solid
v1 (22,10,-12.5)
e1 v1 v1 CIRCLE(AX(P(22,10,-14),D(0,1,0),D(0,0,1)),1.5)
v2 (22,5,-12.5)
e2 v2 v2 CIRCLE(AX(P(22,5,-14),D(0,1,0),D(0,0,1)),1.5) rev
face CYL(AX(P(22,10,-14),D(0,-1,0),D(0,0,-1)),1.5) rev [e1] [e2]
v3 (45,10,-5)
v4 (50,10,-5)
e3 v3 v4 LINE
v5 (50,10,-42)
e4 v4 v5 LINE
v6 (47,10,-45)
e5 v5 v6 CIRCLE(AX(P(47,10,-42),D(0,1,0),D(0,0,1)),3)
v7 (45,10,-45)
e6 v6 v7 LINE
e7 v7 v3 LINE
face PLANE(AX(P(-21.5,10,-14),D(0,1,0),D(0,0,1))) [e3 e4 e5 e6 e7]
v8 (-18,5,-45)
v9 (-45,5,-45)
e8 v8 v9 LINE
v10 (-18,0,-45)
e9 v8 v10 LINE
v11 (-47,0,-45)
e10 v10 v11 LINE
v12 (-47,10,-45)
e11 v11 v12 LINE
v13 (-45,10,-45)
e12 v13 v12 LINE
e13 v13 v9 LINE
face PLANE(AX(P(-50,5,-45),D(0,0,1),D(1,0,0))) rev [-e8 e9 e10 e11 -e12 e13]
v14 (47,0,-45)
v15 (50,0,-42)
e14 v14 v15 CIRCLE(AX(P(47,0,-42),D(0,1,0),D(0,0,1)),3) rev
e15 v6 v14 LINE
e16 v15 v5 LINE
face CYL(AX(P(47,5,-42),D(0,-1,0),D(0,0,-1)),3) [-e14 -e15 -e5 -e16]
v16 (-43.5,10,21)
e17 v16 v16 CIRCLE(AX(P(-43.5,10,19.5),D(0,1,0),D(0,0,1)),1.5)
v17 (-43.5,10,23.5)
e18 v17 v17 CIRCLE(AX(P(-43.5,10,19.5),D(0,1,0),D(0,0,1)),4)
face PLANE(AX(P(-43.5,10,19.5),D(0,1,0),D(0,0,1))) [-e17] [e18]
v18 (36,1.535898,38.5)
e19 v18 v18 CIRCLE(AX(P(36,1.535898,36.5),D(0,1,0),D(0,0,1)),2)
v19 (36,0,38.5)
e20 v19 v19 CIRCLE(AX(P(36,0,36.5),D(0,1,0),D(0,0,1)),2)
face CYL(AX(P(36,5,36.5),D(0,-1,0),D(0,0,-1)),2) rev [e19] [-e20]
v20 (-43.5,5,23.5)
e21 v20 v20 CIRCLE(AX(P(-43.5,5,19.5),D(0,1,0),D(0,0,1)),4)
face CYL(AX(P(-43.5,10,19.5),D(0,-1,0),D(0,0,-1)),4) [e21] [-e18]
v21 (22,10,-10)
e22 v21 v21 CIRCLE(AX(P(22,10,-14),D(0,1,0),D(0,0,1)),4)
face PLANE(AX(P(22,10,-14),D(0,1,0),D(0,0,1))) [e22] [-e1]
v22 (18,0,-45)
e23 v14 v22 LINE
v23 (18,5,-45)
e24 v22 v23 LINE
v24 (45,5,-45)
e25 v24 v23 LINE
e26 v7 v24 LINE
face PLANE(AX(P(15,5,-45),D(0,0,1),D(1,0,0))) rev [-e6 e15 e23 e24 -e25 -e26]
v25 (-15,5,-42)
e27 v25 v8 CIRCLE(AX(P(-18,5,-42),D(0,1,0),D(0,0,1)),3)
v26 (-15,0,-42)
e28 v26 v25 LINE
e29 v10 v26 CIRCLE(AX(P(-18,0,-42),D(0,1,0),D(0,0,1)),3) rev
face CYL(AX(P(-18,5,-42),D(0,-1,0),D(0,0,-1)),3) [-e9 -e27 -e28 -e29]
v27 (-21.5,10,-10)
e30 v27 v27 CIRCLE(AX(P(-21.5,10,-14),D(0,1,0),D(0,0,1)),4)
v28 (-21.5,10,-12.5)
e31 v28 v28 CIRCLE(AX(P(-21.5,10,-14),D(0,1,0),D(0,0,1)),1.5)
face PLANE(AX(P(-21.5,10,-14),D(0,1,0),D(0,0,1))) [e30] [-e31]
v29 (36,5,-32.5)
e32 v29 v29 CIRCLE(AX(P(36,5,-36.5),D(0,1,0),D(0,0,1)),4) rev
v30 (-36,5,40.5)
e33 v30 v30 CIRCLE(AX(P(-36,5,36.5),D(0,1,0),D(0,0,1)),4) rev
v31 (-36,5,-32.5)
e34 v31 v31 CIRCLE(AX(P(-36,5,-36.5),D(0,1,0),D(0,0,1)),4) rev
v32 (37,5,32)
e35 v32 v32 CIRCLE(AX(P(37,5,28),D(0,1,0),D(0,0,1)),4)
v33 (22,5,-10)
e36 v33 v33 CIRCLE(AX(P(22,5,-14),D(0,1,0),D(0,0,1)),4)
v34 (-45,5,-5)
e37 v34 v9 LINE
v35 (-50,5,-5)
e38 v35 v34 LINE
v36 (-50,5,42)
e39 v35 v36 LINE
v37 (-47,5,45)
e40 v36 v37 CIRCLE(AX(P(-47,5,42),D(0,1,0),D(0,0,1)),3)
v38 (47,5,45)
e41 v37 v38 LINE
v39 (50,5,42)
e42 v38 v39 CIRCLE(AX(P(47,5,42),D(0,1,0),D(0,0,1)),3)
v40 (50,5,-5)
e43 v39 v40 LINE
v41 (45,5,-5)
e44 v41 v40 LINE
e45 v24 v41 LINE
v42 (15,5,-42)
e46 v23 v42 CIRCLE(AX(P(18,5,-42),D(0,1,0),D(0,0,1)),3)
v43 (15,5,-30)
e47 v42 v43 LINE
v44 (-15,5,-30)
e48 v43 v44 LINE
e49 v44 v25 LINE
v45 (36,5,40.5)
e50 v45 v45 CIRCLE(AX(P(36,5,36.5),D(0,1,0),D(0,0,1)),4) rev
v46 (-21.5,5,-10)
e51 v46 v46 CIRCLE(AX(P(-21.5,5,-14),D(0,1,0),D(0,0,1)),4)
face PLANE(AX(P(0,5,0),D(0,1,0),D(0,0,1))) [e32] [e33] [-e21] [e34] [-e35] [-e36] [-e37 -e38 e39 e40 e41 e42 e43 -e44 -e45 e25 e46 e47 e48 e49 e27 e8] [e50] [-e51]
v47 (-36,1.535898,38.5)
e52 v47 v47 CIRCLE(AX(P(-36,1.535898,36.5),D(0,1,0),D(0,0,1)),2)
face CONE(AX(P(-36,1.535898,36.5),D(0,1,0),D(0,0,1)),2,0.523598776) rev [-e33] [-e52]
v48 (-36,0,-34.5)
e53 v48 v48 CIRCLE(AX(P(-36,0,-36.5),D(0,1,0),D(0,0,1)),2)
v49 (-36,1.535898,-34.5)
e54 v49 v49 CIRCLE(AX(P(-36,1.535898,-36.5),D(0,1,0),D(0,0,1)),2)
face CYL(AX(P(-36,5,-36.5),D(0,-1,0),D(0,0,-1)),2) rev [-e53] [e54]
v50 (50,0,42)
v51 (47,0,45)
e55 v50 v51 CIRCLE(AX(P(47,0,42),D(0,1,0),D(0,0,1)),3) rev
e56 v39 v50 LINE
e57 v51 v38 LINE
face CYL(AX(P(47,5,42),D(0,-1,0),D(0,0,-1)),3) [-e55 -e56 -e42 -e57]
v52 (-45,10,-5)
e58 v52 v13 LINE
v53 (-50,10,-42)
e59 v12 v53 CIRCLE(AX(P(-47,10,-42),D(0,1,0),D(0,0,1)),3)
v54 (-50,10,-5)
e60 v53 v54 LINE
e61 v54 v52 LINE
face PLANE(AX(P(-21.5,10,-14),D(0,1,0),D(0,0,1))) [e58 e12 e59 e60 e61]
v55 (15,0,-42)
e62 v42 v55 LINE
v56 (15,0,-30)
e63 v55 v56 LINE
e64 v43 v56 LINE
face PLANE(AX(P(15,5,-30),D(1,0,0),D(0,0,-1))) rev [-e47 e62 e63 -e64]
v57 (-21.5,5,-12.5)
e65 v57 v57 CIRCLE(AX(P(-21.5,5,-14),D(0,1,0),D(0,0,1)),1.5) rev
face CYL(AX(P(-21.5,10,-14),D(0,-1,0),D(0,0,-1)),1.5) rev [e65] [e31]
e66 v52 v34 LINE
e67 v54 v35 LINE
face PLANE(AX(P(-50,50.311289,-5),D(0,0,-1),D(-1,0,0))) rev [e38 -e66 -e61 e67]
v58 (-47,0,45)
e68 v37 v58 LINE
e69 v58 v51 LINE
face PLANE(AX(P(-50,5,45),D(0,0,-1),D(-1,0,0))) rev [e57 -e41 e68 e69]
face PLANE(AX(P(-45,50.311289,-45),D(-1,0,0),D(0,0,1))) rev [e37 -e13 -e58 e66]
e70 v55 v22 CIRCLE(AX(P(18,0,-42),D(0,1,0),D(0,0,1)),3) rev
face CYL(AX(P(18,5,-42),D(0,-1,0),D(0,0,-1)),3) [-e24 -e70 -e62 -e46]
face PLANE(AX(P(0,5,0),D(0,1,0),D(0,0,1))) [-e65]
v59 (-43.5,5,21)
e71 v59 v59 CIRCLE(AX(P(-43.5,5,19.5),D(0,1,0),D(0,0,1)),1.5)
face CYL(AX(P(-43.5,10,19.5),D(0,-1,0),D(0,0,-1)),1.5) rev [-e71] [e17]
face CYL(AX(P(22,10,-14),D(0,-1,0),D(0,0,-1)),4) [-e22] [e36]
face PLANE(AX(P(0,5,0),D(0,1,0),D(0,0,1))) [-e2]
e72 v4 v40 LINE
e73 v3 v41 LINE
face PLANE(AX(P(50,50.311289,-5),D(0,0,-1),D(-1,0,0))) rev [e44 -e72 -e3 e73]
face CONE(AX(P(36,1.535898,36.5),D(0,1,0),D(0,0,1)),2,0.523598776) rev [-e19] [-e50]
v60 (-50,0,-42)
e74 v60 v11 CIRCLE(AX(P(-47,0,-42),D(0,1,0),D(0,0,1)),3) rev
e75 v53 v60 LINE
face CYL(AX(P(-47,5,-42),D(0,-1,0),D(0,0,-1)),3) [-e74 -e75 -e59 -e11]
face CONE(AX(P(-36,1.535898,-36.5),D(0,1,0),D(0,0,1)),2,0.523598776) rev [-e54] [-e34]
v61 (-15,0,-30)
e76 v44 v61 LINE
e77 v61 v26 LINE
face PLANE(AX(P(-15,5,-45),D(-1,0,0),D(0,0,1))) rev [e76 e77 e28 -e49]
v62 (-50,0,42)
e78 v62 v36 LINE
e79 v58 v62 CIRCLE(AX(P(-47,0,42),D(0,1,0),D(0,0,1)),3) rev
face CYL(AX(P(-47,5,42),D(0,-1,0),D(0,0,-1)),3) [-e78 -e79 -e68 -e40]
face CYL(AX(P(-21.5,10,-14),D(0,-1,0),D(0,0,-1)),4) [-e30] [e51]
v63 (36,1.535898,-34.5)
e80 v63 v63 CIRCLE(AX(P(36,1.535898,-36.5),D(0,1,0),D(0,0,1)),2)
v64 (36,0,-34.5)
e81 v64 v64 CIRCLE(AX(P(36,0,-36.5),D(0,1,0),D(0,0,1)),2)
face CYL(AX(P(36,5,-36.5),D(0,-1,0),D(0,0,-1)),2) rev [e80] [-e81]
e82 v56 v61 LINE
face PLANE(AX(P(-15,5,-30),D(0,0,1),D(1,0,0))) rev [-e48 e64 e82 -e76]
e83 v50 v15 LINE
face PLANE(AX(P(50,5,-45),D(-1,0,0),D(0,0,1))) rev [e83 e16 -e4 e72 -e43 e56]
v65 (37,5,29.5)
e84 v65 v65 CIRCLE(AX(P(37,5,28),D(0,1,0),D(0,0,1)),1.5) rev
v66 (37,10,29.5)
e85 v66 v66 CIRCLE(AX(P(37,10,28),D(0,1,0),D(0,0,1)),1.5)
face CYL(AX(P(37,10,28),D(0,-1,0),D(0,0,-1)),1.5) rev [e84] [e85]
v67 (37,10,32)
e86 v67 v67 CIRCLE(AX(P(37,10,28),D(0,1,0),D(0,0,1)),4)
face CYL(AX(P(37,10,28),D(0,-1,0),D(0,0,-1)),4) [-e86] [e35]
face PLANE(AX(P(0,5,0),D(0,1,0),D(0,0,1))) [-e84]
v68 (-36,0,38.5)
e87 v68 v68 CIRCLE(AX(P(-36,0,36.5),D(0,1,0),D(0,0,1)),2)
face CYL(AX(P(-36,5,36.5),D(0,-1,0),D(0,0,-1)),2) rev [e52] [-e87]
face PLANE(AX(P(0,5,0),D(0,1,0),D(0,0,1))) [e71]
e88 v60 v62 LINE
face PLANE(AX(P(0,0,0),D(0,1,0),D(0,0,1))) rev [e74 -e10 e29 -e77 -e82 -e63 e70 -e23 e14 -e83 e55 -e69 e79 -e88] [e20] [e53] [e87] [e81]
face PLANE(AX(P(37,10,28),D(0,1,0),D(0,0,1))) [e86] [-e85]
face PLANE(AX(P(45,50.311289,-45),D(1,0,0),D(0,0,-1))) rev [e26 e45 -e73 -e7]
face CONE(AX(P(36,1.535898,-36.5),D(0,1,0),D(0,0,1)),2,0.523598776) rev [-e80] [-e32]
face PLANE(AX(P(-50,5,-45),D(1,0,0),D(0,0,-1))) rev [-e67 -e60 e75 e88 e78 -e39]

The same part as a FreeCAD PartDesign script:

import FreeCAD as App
import Part
import Sketcher
Q = App.Units.Quantity


def edges_at(feature, points):
    """Names of the edges that pass closest to the given points."""
    edges = feature.Shape.Edges
    near = lambda p: min(range(len(edges)), key=lambda i: edges[i].distToShape(Part.Vertex(*p))[0])
    return sorted({f"Edge{near(p) + 1}" for p in points})


def add_polygon(sketch, points):
    """Adds a closed chain of lines whose ends are joined by coincident constraints."""
    first, n = sketch.GeometryCount, len(points)
    for a, b in zip(points, points[1:] + points[:1]):
        sketch.addGeometry(Part.LineSegment(App.Vector(*a, 0), App.Vector(*b, 0)), False)
    for i in range(n):
        sketch.addConstraint(Sketcher.Constraint("Coincident", first + i, 2, first + (i + 1) % n, 1))

doc = App.newDocument("Part")
body = doc.addObject("PartDesign::Body", "Body")

sketch1 = body.newObject("Sketcher::SketchObject", "Sketch")
sketch1.AttachmentSupport = (doc.getObject("XZ_Plane"), [""])
sketch1.MapMode = "FlatFace"
add_polygon(sketch1, [(-50, -45), (-50, 45), (50, 45), (50, -45), (15, -45), (15, -30), (-15, -30), (-15, -45)])
sketch1.addGeometry(Part.Circle(App.Vector(-36, 36.5, 0), App.Vector(0, 0, 1), 2), False)
sketch1.addGeometry(Part.Circle(App.Vector(36, 36.5, 0), App.Vector(0, 0, 1), 2), False)
sketch1.addGeometry(Part.Circle(App.Vector(-36, -36.5, 0), App.Vector(0, 0, 1), 2), False)
sketch1.addGeometry(Part.Circle(App.Vector(36, -36.5, 0), App.Vector(0, 0, 1), 2), False)
sketch1.addConstraint([
    Sketcher.Constraint("Vertical", 0),
    Sketcher.Constraint("Horizontal", 1),
    Sketcher.Constraint("Vertical", 2),
    Sketcher.Constraint("Horizontal", 3),
    Sketcher.Constraint("Vertical", 4),
    Sketcher.Constraint("Horizontal", 5),
    Sketcher.Constraint("Vertical", 6),
    Sketcher.Constraint("Horizontal", 7),
    Sketcher.Constraint("Equal", 8, 9),
    Sketcher.Constraint("Equal", 9, 10),
    Sketcher.Constraint("Equal", 10, 11),
    Sketcher.Constraint("Symmetric", 9, 3, 10, 3, -1, 1),
    Sketcher.Constraint("Symmetric", 8, 3, 11, 3, -1, 1),
    Sketcher.Constraint("Symmetric", 0, 2, 2, 2, -1, 1),
    Sketcher.Constraint("Symmetric", 8, 3, 9, 3, -2),
    Sketcher.Constraint("Symmetric", 3, 2, 6, 2, -2),
    Sketcher.Constraint("Diameter", 8, Q("4 mm")),
    Sketcher.Constraint("DistanceX", 1, 1, 1, 2, Q("100 mm")),
    Sketcher.Constraint("DistanceX", 3, 2, 3, 1, Q("35 mm")),
    Sketcher.Constraint("DistanceY", 0, 1, 0, 2, Q("90 mm")),
    Sketcher.Constraint("DistanceY", 4, 1, 4, 2, Q("15 mm")),
    Sketcher.Constraint("DistanceX", 8, 3, -1, 1, Q("36 mm")),
    Sketcher.Constraint("DistanceY", 10, 3, 8, 3, Q("73 mm")),
])
pad1 = body.newObject("PartDesign::Pad", "Pad")
pad1.Profile = sketch1
pad1.Length = 5
pad1.Reversed = True
doc.recompute()

chamfer = body.newObject("PartDesign::Chamfer", "Chamfer")
chamfer.Base = (pad1, edges_at(pad1, [
    (-36, 5, 34.5),
    (-36, 5, -38.5),
    (36, 5, -38.5),
    (36, 5, 34.5),
]))
chamfer.ChamferType = "Two distances"
chamfer.Size = 2
chamfer.Size2 = 3.464102
chamfer.FlipDirection = True

sketch2 = body.newObject("Sketcher::SketchObject", "Sketch001")
sketch2.AttachmentSupport = (doc.getObject("XZ_Plane"), [""])
sketch2.MapMode = "FlatFace"
sketch2.AttachmentOffset = App.Placement(App.Vector(0, 0, -5), App.Rotation())
sketch2.addGeometry([
    Part.Circle(App.Vector(-43.5, 19.5, 0), App.Vector(0, 0, 1), 4),
    Part.Circle(App.Vector(-43.5, 19.5, 0), App.Vector(0, 0, 1), 1.5),
    Part.Circle(App.Vector(37, 28, 0), App.Vector(0, 0, 1), 4),
    Part.Circle(App.Vector(37, 28, 0), App.Vector(0, 0, 1), 1.5),
    Part.Circle(App.Vector(22, -14, 0), App.Vector(0, 0, 1), 4),
    Part.Circle(App.Vector(22, -14, 0), App.Vector(0, 0, 1), 1.5),
    Part.Circle(App.Vector(-21.5, -14, 0), App.Vector(0, 0, 1), 4),
    Part.Circle(App.Vector(-21.5, -14, 0), App.Vector(0, 0, 1), 1.5),
], False)
sketch2.addConstraint([
    Sketcher.Constraint("Coincident", 1, 3, 0, 3),
    Sketcher.Constraint("Coincident", 3, 3, 2, 3),
    Sketcher.Constraint("Coincident", 5, 3, 4, 3),
    Sketcher.Constraint("Coincident", 7, 3, 6, 3),
    Sketcher.Constraint("Equal", 0, 2),
    Sketcher.Constraint("Equal", 1, 3),
    Sketcher.Constraint("Equal", 2, 4),
    Sketcher.Constraint("Equal", 3, 5),
    Sketcher.Constraint("Equal", 4, 6),
    Sketcher.Constraint("Equal", 5, 7),
    Sketcher.Constraint("Horizontal", 5, 3, 6, 3),
    Sketcher.Constraint("Diameter", 0, Q("8 mm")),
    Sketcher.Constraint("Diameter", 1, Q("3 mm")),
    Sketcher.Constraint("DistanceX", -1, 1, 2, 3, Q("37 mm")),
    Sketcher.Constraint("DistanceY", -1, 1, 2, 3, Q("28 mm")),
    Sketcher.Constraint("DistanceX", -1, 1, 4, 3, Q("22 mm")),
    Sketcher.Constraint("DistanceY", 4, 3, -1, 1, Q("14 mm")),
    Sketcher.Constraint("DistanceX", 0, 3, 6, 3, Q("22 mm")),
    Sketcher.Constraint("DistanceX", 0, 3, -1, 1, Q("43.5 mm")),
    Sketcher.Constraint("DistanceY", -1, 1, 0, 3, Q("19.5 mm")),
])
pad2 = body.newObject("PartDesign::Pad", "Pad001")
pad2.Profile = sketch2
pad2.Length = 5
pad2.Reversed = True

sketch3 = body.newObject("Sketcher::SketchObject", "Sketch002")
sketch3.AttachmentSupport = (doc.getObject("XZ_Plane"), [""])
sketch3.MapMode = "FlatFace"
sketch3.AttachmentOffset = App.Placement(App.Vector(0, 0, -5), App.Rotation())
add_polygon(sketch3, [(-50, -45), (-50, -5), (-45, -5), (-45, -45)])
add_polygon(sketch3, [(45, -45), (45, -5), (50, -5), (50, -45)])
sketch3.addConstraint([
    Sketcher.Constraint("Vertical", 0),
    Sketcher.Constraint("Horizontal", 1),
    Sketcher.Constraint("Vertical", 2),
    Sketcher.Constraint("Horizontal", 3),
    Sketcher.Constraint("Vertical", 4),
    Sketcher.Constraint("Horizontal", 5),
    Sketcher.Constraint("Vertical", 6),
    Sketcher.Constraint("Horizontal", 7),
    Sketcher.Constraint("Symmetric", 1, 2, 4, 2, -2),
    Sketcher.Constraint("Symmetric", 3, 2, 6, 2, -2),
    Sketcher.Constraint("DistanceX", 1, 1, 1, 2, Q("5 mm")),
    Sketcher.Constraint("DistanceY", 0, 1, 0, 2, Q("40 mm")),
    Sketcher.Constraint("DistanceX", 0, 2, -1, 1, Q("50 mm")),
    Sketcher.Constraint("DistanceY", 0, 2, -1, 1, Q("5 mm")),
])
pad3 = body.newObject("PartDesign::Pad", "Pad002")
pad3.Profile = sketch3
pad3.Length = 5
pad3.Reversed = True
doc.recompute()

fillet = body.newObject("PartDesign::Fillet", "Fillet")
fillet.Base = (pad3, edges_at(pad3, [
    (50, 2.5, 45),
    (-50, 2.5, 45),
    (-50, 5, -45),
    (-15, 2.5, -45),
    (15, 2.5, -45),
    (50, 5, -45),
]))
fillet.Radius = 3

doc.recompute()
